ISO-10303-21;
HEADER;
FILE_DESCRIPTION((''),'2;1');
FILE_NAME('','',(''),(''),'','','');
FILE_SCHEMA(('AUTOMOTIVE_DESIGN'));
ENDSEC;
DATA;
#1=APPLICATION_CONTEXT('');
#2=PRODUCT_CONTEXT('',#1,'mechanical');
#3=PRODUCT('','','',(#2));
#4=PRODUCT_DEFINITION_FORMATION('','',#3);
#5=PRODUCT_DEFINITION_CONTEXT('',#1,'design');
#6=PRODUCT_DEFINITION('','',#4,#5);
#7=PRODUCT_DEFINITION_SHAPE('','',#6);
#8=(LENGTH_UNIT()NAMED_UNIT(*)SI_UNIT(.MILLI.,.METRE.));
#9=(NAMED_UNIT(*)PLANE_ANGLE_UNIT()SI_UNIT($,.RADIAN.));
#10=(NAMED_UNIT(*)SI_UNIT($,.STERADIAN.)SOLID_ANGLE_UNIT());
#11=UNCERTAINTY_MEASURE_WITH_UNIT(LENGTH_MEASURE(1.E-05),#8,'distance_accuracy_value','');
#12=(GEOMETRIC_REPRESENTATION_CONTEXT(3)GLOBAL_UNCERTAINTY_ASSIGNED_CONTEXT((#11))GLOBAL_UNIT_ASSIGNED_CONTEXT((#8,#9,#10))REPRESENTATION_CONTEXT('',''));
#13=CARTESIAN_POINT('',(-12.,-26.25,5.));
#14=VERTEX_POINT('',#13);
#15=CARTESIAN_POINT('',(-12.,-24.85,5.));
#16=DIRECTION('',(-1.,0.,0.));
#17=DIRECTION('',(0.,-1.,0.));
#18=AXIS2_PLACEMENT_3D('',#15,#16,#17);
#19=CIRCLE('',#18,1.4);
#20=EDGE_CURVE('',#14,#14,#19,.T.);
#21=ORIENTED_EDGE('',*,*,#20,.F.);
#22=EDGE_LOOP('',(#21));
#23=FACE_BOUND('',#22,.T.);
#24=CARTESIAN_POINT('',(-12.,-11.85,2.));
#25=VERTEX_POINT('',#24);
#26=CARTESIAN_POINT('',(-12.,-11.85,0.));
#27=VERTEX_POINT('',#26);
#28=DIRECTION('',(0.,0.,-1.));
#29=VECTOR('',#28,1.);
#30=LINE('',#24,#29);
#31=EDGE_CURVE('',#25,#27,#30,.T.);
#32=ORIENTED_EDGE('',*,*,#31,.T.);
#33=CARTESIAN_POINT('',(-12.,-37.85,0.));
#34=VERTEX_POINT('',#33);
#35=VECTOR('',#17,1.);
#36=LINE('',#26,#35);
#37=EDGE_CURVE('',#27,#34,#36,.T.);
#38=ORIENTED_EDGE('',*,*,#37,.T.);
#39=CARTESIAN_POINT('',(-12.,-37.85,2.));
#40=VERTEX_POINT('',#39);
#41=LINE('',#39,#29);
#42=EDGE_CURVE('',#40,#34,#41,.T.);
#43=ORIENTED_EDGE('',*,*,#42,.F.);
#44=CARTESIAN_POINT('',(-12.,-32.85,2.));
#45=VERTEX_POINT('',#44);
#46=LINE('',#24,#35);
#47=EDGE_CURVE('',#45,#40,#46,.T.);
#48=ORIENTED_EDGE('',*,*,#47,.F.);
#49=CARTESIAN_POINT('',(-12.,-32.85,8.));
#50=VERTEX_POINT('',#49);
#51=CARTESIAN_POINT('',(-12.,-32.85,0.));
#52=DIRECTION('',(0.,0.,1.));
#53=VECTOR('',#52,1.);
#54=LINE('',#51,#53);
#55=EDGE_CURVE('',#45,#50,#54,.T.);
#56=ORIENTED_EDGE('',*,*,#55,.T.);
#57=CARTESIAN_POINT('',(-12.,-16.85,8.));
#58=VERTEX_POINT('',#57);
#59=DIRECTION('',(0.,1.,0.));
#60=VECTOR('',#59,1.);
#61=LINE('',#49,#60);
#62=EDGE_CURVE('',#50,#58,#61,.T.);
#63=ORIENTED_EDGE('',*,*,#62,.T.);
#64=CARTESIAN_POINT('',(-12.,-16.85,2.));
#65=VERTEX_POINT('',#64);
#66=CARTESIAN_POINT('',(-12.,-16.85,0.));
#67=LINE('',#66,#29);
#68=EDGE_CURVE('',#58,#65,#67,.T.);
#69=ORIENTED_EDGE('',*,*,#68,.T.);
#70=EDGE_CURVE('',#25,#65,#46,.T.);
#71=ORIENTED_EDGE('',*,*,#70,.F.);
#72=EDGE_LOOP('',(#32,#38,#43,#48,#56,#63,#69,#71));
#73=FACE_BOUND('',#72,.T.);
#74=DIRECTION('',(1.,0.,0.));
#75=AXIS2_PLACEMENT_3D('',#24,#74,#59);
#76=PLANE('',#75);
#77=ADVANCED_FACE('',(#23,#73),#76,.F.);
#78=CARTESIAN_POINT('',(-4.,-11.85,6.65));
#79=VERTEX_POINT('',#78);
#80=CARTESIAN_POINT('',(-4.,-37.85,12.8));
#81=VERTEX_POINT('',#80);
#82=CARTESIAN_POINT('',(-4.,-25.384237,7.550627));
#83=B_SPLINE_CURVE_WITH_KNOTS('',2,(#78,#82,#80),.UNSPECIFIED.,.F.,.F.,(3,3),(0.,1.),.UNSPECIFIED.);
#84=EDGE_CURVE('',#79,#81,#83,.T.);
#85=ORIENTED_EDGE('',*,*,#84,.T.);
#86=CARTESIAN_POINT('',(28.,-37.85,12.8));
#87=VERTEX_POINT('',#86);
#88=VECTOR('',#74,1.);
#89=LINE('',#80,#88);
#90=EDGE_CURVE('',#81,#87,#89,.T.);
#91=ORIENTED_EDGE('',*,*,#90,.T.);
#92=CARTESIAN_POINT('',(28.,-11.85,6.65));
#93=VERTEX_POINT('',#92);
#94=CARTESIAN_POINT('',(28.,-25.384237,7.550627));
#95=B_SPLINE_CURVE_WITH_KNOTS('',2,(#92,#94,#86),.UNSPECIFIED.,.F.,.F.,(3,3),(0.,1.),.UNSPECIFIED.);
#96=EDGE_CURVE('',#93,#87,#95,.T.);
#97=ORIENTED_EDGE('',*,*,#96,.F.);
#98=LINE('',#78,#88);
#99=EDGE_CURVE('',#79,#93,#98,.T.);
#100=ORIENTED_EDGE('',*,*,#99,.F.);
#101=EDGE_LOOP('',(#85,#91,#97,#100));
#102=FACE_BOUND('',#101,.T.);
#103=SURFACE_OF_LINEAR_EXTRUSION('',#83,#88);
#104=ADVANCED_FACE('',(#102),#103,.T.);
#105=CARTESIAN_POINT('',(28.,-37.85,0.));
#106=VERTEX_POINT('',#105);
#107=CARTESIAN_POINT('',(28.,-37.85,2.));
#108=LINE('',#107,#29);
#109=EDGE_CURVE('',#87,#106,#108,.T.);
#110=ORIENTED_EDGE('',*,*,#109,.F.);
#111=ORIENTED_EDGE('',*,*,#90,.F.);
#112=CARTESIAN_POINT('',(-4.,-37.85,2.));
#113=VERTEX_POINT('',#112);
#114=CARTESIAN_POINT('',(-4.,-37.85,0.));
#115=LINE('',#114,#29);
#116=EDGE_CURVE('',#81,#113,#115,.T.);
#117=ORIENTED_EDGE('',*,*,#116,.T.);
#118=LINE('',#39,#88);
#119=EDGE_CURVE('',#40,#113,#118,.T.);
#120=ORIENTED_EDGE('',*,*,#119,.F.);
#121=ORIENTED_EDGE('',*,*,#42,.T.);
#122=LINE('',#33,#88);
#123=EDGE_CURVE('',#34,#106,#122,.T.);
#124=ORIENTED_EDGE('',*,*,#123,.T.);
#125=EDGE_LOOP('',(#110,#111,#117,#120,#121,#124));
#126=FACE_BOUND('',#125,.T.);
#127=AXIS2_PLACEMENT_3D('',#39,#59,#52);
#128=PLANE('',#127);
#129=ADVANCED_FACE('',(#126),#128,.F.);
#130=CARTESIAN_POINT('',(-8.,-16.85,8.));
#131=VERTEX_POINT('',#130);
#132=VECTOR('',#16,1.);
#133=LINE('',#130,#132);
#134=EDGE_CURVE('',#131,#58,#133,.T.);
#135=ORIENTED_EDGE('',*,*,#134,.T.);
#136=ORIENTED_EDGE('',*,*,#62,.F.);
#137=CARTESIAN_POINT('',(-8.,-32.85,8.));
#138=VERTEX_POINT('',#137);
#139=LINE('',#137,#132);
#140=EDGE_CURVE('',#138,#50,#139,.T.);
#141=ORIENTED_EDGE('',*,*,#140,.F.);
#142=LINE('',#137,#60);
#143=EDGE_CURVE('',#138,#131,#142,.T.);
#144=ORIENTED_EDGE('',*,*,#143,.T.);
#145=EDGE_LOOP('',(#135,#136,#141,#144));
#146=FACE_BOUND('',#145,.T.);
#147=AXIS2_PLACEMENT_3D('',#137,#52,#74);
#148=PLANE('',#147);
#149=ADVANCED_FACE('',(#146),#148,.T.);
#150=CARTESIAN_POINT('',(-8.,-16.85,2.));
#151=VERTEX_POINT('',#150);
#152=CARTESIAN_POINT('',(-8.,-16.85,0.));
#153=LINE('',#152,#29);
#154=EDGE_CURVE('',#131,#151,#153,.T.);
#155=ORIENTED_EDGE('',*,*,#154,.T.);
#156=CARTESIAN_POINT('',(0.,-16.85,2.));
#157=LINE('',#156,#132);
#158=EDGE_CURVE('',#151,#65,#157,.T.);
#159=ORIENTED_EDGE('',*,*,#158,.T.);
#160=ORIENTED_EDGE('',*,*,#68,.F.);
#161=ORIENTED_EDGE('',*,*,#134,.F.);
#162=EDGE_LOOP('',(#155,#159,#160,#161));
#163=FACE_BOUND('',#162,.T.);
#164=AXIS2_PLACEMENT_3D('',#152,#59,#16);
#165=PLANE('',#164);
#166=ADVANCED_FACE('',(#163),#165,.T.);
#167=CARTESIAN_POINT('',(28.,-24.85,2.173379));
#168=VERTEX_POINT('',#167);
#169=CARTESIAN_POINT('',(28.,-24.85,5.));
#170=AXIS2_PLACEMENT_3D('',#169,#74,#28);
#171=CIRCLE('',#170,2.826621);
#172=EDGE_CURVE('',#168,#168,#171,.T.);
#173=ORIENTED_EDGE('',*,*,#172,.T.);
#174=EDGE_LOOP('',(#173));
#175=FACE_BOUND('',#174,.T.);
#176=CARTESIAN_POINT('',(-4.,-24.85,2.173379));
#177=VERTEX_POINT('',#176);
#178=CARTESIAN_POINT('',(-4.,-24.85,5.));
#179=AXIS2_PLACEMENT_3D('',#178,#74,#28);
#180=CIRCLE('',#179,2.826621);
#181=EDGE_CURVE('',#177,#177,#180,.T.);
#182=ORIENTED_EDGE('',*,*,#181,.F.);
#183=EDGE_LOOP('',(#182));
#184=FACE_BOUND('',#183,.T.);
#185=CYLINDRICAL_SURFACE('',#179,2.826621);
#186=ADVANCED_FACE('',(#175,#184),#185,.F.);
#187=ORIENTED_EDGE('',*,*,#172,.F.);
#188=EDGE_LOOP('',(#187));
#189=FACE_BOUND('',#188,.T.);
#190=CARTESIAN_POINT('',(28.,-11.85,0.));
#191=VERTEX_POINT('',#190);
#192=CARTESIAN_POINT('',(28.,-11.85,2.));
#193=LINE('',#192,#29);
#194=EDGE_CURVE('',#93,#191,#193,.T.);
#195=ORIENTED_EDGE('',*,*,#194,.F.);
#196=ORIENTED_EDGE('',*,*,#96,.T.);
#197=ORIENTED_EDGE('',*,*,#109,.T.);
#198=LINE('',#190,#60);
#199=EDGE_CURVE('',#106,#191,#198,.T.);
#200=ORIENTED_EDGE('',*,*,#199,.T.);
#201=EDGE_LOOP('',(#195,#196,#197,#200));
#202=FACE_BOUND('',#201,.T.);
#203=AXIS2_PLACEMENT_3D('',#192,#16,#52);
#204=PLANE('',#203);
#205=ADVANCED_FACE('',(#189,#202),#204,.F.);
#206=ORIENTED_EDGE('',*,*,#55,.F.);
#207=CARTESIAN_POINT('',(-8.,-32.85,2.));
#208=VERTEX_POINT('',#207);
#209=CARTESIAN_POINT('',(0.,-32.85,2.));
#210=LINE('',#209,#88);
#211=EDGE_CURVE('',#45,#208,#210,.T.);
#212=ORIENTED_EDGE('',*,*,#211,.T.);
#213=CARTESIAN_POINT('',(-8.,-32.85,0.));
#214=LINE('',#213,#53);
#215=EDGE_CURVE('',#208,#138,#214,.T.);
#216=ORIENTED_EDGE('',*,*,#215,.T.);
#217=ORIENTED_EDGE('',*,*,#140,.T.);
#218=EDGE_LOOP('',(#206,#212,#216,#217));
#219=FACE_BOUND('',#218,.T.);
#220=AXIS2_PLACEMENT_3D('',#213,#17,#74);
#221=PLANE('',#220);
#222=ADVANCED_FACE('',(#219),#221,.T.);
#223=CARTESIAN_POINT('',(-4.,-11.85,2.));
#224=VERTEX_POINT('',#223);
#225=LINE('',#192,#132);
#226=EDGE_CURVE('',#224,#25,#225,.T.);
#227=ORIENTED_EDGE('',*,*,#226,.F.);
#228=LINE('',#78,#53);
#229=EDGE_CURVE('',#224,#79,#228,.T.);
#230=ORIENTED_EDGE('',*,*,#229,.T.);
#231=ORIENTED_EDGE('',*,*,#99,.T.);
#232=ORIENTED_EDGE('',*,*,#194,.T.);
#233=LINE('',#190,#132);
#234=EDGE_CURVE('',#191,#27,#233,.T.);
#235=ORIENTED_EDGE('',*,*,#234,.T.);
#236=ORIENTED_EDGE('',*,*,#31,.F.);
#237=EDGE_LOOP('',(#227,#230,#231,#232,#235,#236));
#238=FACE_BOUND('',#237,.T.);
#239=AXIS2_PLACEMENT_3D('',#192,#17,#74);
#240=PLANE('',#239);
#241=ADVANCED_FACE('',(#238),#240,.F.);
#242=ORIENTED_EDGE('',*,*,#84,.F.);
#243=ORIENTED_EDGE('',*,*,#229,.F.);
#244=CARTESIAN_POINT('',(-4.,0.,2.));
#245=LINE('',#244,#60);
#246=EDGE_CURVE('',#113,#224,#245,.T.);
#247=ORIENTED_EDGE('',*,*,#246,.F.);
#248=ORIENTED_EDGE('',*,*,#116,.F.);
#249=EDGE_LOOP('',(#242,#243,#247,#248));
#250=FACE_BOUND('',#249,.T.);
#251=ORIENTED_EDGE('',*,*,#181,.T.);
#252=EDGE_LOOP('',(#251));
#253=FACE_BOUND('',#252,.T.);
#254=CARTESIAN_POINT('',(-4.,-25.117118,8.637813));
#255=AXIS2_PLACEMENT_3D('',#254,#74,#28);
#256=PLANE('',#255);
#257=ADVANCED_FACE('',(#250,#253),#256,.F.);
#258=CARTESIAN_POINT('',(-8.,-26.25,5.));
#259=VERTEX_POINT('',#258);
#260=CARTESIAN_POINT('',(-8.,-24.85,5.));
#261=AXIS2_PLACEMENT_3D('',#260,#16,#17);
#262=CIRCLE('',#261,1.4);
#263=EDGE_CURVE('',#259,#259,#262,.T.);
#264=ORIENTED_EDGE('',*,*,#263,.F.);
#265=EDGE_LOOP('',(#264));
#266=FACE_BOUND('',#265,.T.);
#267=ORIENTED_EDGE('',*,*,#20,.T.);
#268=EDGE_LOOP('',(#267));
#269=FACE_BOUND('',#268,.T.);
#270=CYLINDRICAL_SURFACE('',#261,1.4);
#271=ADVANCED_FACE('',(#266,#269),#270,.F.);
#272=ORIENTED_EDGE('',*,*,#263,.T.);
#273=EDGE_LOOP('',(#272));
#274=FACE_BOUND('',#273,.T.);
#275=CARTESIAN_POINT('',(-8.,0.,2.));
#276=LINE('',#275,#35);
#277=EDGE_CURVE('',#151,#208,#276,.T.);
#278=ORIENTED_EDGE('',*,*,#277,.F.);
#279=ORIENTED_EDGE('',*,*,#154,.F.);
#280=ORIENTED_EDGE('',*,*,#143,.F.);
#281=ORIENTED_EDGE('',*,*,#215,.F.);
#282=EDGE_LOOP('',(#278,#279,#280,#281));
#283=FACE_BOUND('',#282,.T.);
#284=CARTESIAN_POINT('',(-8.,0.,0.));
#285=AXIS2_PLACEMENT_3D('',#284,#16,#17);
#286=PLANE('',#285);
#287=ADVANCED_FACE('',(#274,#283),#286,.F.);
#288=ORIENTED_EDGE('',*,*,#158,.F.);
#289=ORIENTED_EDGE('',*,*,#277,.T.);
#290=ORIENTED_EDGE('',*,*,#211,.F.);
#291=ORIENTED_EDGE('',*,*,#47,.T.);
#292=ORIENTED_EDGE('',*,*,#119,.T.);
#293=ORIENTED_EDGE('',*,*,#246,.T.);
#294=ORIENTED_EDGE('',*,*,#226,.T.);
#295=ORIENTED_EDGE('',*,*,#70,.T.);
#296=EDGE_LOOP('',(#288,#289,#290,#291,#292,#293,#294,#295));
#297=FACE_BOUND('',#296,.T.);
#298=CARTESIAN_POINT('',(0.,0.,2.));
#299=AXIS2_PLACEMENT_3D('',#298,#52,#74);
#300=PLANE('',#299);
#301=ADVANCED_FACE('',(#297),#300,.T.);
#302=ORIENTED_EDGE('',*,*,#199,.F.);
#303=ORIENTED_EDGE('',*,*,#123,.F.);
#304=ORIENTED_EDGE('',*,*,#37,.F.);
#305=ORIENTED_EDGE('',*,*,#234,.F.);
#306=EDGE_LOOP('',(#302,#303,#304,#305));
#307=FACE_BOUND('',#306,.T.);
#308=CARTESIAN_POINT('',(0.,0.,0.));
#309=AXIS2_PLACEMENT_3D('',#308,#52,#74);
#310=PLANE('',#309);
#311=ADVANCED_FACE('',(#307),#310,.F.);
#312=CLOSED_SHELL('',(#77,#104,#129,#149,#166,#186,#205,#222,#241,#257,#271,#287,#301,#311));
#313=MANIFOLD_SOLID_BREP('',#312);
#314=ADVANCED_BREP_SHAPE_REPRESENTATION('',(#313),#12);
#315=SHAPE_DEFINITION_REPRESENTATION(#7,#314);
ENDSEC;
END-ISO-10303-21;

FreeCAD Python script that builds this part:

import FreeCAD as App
import Part
import Sketcher

V = App.Vector

doc = App.newDocument("Part")
body = doc.addObject("PartDesign::Body", "Body")

# Sketch on XY plane
sketch1 = body.newObject("Sketcher::SketchObject", "Sketch")
sketch1.AttachmentSupport = (doc.getObject("XY_Plane"), [""])
sketch1.MapMode = "FlatFace"
sketch1.addGeometry(Part.LineSegment(V(-12, -11.85, 0), V(-12, -37.85, 0)), False)
sketch1.addGeometry(Part.LineSegment(V(-12, -37.85, 0), V(28, -37.85, 0)), False)
sketch1.addGeometry(Part.LineSegment(V(28, -37.85, 0), V(28, -11.85, 0)), False)
sketch1.addGeometry(Part.LineSegment(V(28, -11.85, 0), V(-12, -11.85, 0)), False)
sketch1.addConstraint(Sketcher.Constraint("Coincident", 0, 2, 1, 1))
sketch1.addConstraint(Sketcher.Constraint("Coincident", 1, 2, 2, 1))
sketch1.addConstraint(Sketcher.Constraint("Coincident", 2, 2, 3, 1))
sketch1.addConstraint(Sketcher.Constraint("Coincident", 3, 2, 0, 1))
sketch1.addConstraint(Sketcher.Constraint("Vertical", 0))
sketch1.addConstraint(Sketcher.Constraint("Horizontal", 1))
sketch1.addConstraint(Sketcher.Constraint("Vertical", 2))
sketch1.addConstraint(Sketcher.Constraint("Horizontal", 3))
sketch1.addConstraint(Sketcher.Constraint("DistanceX", 1, 1, 1, 2, 40.0))
sketch1.addConstraint(Sketcher.Constraint("DistanceY", 0, 2, 0, 1, 26.0))
sketch1.addConstraint(Sketcher.Constraint("DistanceX", 0, 2, -1, 1, 12.0))
sketch1.addConstraint(Sketcher.Constraint("DistanceY", 0, 2, -1, 1, 37.85))
pad1 = body.newObject("PartDesign::Pad", "Pad")
pad1.Profile = sketch1
pad1.Length = 2

# Sketch on YZ plane
sketch2 = body.newObject("Sketcher::SketchObject", "Sketch001")
sketch2.AttachmentSupport = (doc.getObject("YZ_Plane"), [""])
sketch2.MapMode = "FlatFace"
sketch2.AttachmentOffset = App.Placement(V(0, 0, -12), App.Rotation())
sketch2.addGeometry(Part.LineSegment(V(-16.85, 0, 0), V(-32.85, 0, 0)), False)
sketch2.addGeometry(Part.LineSegment(V(-32.85, 0, 0), V(-32.85, 8, 0)), False)
sketch2.addGeometry(Part.LineSegment(V(-32.85, 8, 0), V(-16.85, 8, 0)), False)
sketch2.addGeometry(Part.LineSegment(V(-16.85, 8, 0), V(-16.85, 0, 0)), False)
sketch2.addConstraint(Sketcher.Constraint("Coincident", 0, 2, 1, 1))
sketch2.addConstraint(Sketcher.Constraint("Coincident", 1, 2, 2, 1))
sketch2.addConstraint(Sketcher.Constraint("Coincident", 2, 2, 3, 1))
sketch2.addConstraint(Sketcher.Constraint("Coincident", 3, 2, 0, 1))
sketch2.addConstraint(Sketcher.Constraint("Horizontal", 0))
sketch2.addConstraint(Sketcher.Constraint("Vertical", 1))
sketch2.addConstraint(Sketcher.Constraint("Horizontal", 2))
sketch2.addConstraint(Sketcher.Constraint("Vertical", 3))
sketch2.addConstraint(Sketcher.Constraint("PointOnObject", 0, 2, -1))
sketch2.addConstraint(Sketcher.Constraint("DistanceX", 0, 2, 0, 1, 16.0))
sketch2.addConstraint(Sketcher.Constraint("DistanceY", 1, 1, 1, 2, 8.0))
sketch2.addConstraint(Sketcher.Constraint("DistanceX", 0, 2, -1, 1, 32.85))
pad2 = body.newObject("PartDesign::Pad", "Pad001")
pad2.Profile = sketch2
pad2.Length = 4

# Sketch on YZ plane
sketch3 = body.newObject("Sketcher::SketchObject", "Sketch002")
sketch3.AttachmentSupport = (doc.getObject("YZ_Plane"), [""])
sketch3.MapMode = "FlatFace"
sketch3.AttachmentOffset = App.Placement(V(0, 0, -12), App.Rotation())
sketch3.addGeometry(Part.Circle(V(-24.85, 5, 0), V(0, 0, 1), 1.4), False)
sketch3.addConstraint(Sketcher.Constraint("Diameter", 0, 2.8))
sketch3.addConstraint(Sketcher.Constraint("DistanceY", -1, 1, 0, 3, 5.0))
sketch3.addConstraint(Sketcher.Constraint("DistanceX", 0, 3, -1, 1, 24.85))
pocket1 = body.newObject("PartDesign::Pocket", "Pocket")
pocket1.Profile = sketch3
pocket1.Length = 4
pocket1.Reversed = True

# Sketch on YZ plane
sketch4 = body.newObject("Sketcher::SketchObject", "Sketch003")
sketch4.AttachmentSupport = (doc.getObject("YZ_Plane"), [""])
sketch4.MapMode = "FlatFace"
sketch4.AttachmentOffset = App.Placement(V(0, 0, 28), App.Rotation())
sketch4.addGeometry(Part.LineSegment(V(-11.85, 0, 0), V(-11.85, 6.65, 0)), False)
sketch4.addGeometry(Part.BSplineCurve([V(-11.85, 6.65, 0), V(-25.384237, 7.550627, 0), V(-37.85, 12.8, 0)], [3, 3], [0, 1], False, 2, [1, 1, 1], False), False)
sketch4.addGeometry(Part.LineSegment(V(-37.85, 12.8, 0), V(-37.85, 0, 0)), False)
sketch4.addGeometry(Part.LineSegment(V(-37.85, 0, 0), V(-11.85, 0, 0)), False)
sketch4.addConstraint(Sketcher.Constraint("Block", 1))
sketch4.addConstraint(Sketcher.Constraint("Coincident", 0, 2, 1, 1))
sketch4.addConstraint(Sketcher.Constraint("Coincident", 1, 2, 2, 1))
sketch4.addConstraint(Sketcher.Constraint("Coincident", 2, 2, 3, 1))
sketch4.addConstraint(Sketcher.Constraint("Coincident", 3, 2, 0, 1))
sketch4.addConstraint(Sketcher.Constraint("Vertical", 0))
sketch4.addConstraint(Sketcher.Constraint("Vertical", 2))
sketch4.addConstraint(Sketcher.Constraint("Horizontal", 3))
sketch4.addConstraint(Sketcher.Constraint("PointOnObject", 2, 2, -1))
pad3 = body.newObject("PartDesign::Pad", "Pad002")
pad3.Profile = sketch4
pad3.Length = 32
pad3.Reversed = True

# Sketch on YZ plane
sketch5 = body.newObject("Sketcher::SketchObject", "Sketch004")
sketch5.AttachmentSupport = (doc.getObject("YZ_Plane"), [""])
sketch5.MapMode = "FlatFace"
sketch5.AttachmentOffset = App.Placement(V(0, 0, -12), App.Rotation())
sketch5.addGeometry(Part.Circle(V(-24.85, 5, 0), V(0, 0, 1), 1.4), False)
sketch5.addConstraint(Sketcher.Constraint("Diameter", 0, 2.8))
sketch5.addConstraint(Sketcher.Constraint("DistanceY", -1, 1, 0, 3, 5.0))
sketch5.addConstraint(Sketcher.Constraint("DistanceX", 0, 3, -1, 1, 24.85))
pocket2 = body.newObject("PartDesign::Pocket", "Pocket001")
pocket2.Profile = sketch5
pocket2.Length = 41
pocket2.Reversed = True

# Sketch on YZ plane
sketch6 = body.newObject("Sketcher::SketchObject", "Sketch005")
sketch6.AttachmentSupport = (doc.getObject("YZ_Plane"), [""])
sketch6.MapMode = "FlatFace"
sketch6.AttachmentOffset = App.Placement(V(0, 0, 28), App.Rotation())
sketch6.addGeometry(Part.Circle(V(-24.85, 5, 0), V(0, 0, 1), 2.826621), False)
sketch6.addConstraint(Sketcher.Constraint("DistanceY", -1, 1, 0, 3, 5.0))
sketch6.addConstraint(Sketcher.Constraint("Diameter", 0, 5.653241))
sketch6.addConstraint(Sketcher.Constraint("DistanceX", 0, 3, -1, 1, 24.85))
pocket3 = body.newObject("PartDesign::Pocket", "Pocket002")
pocket3.Profile = sketch6
pocket3.Length = 32

doc.recompute()
